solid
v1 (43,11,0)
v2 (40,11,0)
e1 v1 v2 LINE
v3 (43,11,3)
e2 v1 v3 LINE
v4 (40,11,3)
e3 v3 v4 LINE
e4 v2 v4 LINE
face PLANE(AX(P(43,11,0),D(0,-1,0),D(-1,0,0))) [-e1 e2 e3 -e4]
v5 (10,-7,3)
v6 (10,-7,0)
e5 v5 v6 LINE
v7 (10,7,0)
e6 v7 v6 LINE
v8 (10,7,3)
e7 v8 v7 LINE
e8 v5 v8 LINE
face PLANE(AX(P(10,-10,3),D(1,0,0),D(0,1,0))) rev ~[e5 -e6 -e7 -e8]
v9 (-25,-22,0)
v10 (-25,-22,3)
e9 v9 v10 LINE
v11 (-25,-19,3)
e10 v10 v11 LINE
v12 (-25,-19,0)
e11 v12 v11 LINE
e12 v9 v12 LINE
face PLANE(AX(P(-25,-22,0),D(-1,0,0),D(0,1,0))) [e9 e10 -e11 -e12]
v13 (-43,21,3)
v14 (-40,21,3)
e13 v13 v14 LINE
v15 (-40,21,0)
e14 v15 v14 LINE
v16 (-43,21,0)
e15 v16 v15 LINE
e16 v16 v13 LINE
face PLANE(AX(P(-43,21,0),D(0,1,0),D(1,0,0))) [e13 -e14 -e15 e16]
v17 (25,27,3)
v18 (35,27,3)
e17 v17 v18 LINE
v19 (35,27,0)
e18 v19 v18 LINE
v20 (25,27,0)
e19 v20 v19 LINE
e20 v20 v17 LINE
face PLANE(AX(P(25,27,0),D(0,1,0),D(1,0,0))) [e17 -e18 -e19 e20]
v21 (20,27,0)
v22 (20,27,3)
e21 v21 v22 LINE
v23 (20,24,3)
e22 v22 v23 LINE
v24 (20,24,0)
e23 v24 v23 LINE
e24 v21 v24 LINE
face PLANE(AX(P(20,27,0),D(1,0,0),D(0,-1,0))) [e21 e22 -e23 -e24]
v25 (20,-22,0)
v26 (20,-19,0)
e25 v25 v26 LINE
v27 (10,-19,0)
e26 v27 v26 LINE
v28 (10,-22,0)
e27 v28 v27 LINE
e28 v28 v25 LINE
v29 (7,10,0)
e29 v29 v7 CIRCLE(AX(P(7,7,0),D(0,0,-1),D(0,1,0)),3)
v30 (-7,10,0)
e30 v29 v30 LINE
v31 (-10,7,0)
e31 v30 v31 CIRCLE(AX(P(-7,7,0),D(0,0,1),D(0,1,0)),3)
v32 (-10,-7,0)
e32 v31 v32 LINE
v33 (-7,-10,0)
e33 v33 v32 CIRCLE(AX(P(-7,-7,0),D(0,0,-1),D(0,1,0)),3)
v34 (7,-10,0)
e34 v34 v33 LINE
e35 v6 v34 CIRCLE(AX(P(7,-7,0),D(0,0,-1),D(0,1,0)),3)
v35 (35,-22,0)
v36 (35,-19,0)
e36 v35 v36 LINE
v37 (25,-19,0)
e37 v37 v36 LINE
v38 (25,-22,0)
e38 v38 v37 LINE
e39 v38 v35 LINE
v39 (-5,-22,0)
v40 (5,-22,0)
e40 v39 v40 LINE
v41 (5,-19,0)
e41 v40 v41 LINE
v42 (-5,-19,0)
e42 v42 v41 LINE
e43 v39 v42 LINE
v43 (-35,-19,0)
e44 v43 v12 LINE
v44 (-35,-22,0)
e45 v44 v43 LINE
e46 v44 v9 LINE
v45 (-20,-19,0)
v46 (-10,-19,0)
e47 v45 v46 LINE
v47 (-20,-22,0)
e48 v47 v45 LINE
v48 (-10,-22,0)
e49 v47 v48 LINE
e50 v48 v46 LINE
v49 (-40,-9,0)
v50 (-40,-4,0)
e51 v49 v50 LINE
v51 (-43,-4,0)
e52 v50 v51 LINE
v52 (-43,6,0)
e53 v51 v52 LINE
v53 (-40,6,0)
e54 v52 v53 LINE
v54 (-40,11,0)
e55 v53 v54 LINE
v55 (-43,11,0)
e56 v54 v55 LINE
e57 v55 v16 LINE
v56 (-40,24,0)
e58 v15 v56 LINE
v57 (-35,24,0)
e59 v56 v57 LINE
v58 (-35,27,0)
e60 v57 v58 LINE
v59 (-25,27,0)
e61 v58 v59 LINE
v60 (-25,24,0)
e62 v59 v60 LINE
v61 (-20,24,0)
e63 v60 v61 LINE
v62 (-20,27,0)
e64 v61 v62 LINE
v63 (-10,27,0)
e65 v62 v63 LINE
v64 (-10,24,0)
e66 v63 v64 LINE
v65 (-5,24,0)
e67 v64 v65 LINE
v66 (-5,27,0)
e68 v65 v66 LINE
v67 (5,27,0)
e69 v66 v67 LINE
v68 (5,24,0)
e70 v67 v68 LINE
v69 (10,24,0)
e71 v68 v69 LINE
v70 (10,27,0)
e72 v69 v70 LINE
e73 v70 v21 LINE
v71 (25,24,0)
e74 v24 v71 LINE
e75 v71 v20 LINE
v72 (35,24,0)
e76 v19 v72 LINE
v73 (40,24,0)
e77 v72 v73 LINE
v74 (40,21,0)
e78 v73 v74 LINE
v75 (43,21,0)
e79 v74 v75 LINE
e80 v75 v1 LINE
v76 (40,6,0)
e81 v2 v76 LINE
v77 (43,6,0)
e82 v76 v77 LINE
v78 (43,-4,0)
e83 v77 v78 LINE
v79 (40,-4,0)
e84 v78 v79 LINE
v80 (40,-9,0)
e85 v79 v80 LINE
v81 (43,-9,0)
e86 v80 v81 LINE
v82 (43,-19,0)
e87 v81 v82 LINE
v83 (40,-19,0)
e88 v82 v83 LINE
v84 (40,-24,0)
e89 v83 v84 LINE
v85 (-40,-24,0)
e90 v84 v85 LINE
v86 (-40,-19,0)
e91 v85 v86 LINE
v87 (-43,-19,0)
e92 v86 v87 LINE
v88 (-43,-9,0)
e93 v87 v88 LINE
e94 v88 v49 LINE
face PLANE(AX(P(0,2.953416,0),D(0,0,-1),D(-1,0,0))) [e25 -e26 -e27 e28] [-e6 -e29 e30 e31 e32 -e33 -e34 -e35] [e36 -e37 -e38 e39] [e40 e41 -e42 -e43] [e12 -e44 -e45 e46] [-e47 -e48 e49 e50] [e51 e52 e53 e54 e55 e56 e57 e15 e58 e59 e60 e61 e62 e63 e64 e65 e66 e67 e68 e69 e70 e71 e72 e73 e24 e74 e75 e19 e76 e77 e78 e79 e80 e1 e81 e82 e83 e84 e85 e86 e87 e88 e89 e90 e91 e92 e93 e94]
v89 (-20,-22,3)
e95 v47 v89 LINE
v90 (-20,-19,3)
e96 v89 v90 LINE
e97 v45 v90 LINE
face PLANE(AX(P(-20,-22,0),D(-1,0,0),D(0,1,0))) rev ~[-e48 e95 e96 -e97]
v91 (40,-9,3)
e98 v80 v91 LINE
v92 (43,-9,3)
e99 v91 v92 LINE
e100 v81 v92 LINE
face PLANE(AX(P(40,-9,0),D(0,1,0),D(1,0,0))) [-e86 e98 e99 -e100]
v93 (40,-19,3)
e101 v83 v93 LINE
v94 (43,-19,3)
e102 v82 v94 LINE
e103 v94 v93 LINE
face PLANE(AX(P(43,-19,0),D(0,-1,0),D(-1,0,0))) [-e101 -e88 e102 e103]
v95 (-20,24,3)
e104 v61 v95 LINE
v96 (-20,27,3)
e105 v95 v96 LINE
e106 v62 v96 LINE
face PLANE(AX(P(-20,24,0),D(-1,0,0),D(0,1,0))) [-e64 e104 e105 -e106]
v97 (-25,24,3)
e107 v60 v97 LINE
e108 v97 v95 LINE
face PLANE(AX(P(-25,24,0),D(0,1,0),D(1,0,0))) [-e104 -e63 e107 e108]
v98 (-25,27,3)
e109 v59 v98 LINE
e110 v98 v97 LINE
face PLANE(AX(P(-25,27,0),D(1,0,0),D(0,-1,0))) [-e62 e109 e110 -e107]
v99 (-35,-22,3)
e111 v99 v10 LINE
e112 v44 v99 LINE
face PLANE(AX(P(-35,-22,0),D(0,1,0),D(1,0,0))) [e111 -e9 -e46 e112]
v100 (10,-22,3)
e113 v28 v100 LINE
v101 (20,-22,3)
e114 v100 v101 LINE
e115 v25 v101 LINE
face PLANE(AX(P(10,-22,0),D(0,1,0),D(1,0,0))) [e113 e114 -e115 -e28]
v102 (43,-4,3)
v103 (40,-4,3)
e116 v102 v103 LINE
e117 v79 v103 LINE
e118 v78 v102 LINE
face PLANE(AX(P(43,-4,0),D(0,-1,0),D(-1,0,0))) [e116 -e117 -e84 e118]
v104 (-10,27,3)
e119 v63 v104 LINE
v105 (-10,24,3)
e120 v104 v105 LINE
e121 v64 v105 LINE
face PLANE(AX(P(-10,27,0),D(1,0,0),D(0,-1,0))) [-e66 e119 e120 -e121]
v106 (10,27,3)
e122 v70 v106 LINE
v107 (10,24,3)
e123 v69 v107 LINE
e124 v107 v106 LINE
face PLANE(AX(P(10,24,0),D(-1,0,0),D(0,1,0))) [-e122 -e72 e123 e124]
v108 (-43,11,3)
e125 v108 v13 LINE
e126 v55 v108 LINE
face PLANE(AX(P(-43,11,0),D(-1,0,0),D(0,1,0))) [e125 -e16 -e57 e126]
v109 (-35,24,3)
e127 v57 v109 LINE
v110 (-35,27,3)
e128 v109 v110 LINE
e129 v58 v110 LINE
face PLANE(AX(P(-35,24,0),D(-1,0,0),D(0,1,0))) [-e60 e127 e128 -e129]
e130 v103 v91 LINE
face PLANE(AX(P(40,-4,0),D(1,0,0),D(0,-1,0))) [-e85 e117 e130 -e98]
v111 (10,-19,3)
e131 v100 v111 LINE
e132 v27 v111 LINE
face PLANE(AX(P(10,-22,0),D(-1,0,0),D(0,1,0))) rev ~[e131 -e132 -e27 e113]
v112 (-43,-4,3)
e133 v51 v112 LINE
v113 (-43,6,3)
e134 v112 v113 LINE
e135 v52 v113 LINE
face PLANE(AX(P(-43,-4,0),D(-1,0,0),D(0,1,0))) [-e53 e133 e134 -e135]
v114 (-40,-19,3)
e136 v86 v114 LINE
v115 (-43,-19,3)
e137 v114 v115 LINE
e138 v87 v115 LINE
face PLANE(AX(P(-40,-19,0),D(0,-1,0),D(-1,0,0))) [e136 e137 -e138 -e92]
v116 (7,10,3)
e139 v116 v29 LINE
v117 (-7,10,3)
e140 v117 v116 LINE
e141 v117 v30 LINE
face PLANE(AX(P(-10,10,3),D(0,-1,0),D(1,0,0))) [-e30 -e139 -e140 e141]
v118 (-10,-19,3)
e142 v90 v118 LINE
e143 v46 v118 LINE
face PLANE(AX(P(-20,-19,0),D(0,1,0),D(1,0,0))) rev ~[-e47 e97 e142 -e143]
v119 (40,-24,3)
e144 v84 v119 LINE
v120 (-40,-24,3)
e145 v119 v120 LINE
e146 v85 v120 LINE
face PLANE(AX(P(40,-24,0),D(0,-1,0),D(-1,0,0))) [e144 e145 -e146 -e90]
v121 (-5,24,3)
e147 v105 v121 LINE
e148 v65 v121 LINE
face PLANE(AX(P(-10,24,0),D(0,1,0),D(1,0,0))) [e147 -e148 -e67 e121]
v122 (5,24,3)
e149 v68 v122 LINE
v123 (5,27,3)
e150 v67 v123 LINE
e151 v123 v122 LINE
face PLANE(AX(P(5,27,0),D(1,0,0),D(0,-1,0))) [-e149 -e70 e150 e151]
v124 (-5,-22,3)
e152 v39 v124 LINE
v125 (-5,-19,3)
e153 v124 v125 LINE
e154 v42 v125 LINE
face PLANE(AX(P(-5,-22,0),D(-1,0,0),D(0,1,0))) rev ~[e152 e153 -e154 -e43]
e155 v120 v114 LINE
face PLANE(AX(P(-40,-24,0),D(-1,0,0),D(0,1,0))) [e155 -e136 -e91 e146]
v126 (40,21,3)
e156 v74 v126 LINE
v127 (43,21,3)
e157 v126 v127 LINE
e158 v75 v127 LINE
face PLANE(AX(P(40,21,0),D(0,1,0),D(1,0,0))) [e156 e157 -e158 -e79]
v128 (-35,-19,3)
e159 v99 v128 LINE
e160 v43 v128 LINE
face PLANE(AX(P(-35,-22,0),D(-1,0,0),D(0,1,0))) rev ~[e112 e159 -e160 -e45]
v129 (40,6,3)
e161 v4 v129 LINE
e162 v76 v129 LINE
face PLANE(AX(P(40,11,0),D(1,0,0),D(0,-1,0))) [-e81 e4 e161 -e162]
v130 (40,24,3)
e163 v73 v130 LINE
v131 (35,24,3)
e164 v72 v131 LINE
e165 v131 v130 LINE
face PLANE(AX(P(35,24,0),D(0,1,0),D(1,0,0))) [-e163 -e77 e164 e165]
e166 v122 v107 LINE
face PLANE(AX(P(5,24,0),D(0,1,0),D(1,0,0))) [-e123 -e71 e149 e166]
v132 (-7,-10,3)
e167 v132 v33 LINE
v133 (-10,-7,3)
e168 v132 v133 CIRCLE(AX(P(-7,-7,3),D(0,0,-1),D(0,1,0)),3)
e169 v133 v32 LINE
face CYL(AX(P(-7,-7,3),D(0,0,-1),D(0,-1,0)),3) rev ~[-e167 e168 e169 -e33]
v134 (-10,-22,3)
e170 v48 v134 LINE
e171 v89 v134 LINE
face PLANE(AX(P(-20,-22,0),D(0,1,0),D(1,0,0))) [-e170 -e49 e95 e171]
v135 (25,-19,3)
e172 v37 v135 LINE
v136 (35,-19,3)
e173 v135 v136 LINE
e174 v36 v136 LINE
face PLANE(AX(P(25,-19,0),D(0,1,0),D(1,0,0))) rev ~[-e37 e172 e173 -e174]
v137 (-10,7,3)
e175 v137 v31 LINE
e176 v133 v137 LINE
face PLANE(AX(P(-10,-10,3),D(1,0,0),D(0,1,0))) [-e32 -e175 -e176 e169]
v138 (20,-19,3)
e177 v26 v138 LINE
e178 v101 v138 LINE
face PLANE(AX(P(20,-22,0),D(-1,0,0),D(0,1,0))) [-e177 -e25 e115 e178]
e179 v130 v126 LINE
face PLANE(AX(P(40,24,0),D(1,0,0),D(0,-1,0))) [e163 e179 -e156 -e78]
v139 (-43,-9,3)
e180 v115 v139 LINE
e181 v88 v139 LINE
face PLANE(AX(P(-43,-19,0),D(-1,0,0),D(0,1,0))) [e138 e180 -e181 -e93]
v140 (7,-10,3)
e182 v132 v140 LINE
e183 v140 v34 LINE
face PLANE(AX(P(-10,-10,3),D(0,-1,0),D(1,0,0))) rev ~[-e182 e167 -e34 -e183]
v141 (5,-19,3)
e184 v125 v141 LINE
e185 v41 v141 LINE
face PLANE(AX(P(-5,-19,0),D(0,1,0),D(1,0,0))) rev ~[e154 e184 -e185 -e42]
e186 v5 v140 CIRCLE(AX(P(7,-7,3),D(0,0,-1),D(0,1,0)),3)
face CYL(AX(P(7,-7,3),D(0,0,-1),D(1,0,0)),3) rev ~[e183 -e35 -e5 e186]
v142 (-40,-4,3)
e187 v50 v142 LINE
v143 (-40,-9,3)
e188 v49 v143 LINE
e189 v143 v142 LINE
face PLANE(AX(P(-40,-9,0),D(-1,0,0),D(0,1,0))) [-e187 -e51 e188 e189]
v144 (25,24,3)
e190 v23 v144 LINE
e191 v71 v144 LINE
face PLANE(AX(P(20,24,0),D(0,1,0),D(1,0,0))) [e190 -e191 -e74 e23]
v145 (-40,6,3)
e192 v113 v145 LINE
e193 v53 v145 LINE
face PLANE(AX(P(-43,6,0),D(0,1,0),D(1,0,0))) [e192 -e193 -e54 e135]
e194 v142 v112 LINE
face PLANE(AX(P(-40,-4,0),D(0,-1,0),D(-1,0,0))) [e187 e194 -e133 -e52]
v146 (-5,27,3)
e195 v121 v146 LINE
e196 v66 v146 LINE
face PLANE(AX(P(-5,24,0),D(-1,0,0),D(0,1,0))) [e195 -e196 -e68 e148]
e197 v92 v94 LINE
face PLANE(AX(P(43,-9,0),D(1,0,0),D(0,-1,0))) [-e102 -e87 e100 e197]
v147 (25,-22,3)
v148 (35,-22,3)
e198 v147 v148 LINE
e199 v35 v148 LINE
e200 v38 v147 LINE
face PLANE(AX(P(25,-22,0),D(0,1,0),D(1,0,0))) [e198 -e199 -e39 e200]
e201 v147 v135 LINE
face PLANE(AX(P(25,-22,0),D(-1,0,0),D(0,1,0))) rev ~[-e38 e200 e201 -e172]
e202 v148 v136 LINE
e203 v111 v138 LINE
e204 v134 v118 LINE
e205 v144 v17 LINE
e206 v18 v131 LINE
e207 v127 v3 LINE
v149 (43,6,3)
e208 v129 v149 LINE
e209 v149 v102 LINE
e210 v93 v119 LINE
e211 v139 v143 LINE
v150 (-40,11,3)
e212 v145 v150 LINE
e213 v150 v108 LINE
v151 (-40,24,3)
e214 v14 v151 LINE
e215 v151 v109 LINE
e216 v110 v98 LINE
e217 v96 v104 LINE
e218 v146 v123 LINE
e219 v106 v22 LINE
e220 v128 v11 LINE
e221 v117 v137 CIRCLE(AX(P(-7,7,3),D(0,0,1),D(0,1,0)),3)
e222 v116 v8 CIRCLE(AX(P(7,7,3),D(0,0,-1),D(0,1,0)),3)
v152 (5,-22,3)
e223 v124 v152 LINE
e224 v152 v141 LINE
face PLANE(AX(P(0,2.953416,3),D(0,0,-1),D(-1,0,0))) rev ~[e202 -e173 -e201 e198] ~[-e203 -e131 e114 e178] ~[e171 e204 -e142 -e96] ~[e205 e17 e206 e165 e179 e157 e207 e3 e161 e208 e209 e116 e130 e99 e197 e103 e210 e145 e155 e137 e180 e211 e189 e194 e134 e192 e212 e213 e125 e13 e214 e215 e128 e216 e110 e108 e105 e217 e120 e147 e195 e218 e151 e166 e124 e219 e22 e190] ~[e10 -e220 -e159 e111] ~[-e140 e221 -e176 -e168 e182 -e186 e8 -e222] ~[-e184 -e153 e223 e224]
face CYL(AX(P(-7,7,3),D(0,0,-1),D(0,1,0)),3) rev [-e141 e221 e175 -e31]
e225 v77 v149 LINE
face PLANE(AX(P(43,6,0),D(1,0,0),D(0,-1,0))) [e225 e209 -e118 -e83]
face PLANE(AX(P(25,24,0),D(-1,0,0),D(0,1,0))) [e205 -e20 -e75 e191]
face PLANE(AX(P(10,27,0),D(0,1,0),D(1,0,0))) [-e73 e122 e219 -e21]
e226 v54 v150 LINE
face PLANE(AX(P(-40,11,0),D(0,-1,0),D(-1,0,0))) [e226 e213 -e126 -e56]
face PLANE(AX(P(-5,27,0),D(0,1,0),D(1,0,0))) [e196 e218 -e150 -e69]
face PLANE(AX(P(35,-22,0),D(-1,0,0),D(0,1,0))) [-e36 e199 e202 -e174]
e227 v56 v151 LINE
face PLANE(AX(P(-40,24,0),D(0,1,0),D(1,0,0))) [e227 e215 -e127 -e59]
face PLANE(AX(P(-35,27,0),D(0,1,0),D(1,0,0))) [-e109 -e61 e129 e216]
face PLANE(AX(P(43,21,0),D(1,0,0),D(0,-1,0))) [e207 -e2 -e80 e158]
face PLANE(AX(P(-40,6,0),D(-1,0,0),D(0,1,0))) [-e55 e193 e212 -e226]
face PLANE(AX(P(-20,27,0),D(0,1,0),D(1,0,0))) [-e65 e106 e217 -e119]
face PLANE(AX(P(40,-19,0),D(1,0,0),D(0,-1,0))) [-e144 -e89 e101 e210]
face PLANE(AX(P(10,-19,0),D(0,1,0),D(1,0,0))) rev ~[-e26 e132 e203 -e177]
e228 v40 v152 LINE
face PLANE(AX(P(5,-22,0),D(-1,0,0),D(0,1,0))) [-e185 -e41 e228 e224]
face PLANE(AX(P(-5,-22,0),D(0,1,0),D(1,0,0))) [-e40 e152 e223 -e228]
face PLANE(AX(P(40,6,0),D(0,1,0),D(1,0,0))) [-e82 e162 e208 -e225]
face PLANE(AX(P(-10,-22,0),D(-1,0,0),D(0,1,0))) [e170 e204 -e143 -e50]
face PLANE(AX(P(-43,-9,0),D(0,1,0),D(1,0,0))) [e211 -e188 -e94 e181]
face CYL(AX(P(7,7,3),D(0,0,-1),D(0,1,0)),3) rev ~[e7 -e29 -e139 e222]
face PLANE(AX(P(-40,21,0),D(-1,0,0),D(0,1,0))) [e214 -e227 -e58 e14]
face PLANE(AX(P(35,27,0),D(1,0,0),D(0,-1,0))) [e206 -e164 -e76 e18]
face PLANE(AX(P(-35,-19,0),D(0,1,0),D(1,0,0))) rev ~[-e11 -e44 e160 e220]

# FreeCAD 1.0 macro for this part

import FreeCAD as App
import Part
import Sketcher
Q = App.Units.Quantity


def edges_at(feature, points):
    """Names of the edges that pass closest to the given points."""
    edges = feature.Shape.Edges
    near = lambda p: min(range(len(edges)), key=lambda i: edges[i].distToShape(Part.Vertex(*p))[0])
    return sorted({f"Edge{near(p) + 1}" for p in points})


def add_polygon(sketch, points):
    """Adds a closed chain of lines whose ends are joined by coincident constraints."""
    first, n = sketch.GeometryCount, len(points)
    for a, b in zip(points, points[1:] + points[:1]):
        sketch.addGeometry(Part.LineSegment(App.Vector(*a, 0), App.Vector(*b, 0)), False)
    for i in range(n):
        sketch.addConstraint(Sketcher.Constraint("Coincident", first + i, 2, first + (i + 1) % n, 1))

doc = App.newDocument("Part")
body = doc.addObject("PartDesign::Body", "Body")

# Sketch on XY plane
sketch1 = body.newObject("Sketcher::SketchObject", "Sketch")
sketch1.AttachmentSupport = (doc.getObject("XY_Plane"), [""])
sketch1.MapMode = "FlatFace"
add_polygon(sketch1, [(-35, 24), (-40, 24), (-40, 21), (-43, 21), (-43, 11), (-40, 11), (-40, 6), (-43, 6), (-43, -4), (-40, -4), (-40, -9), (-43, -9), (-43, -19), (-40, -19), (-40, -24), (40, -24), (40, -19), (43, -19), (43, -9), (40, -9), (40, -4), (43, -4), (43, 6), (40, 6), (40, 11), (43, 11), (43, 21), (40, 21), (40, 24), (35, 24), (35, 27), (25, 27), (25, 24), (20, 24), (20, 27), (10, 27), (10, 24), (5, 24), (5, 27), (-5, 27), (-5, 24), (-10, 24), (-10, 27), (-20, 27), (-20, 24), (-25, 24), (-25, 27), (-35, 27)])  # lines 0-47
add_polygon(sketch1, [(25, -22), (25, -19), (35, -19), (35, -22)])  # lines 48-51
add_polygon(sketch1, [(10, -22), (10, -19), (20, -19), (20, -22)])  # lines 52-55
add_polygon(sketch1, [(-5, -22), (-5, -19), (5, -19), (5, -22)])  # lines 56-59
add_polygon(sketch1, [(-20, -22), (-20, -19), (-10, -19), (-10, -22)])  # lines 60-63
add_polygon(sketch1, [(-35, -22), (-35, -19), (-25, -19), (-25, -22)])  # lines 64-67
sketch1.addConstraint([
    Sketcher.Constraint("Horizontal", 0),
    Sketcher.Constraint("Vertical", 1),
    Sketcher.Constraint("Horizontal", 2),
    Sketcher.Constraint("Vertical", 3),
    Sketcher.Constraint("Horizontal", 4),
    Sketcher.Constraint("Vertical", 5),
    Sketcher.Constraint("Horizontal", 6),
    Sketcher.Constraint("Vertical", 7),
    Sketcher.Constraint("Horizontal", 8),
    Sketcher.Constraint("Vertical", 9),
    Sketcher.Constraint("Horizontal", 10),
    Sketcher.Constraint("Vertical", 11),
    Sketcher.Constraint("Horizontal", 12),
    Sketcher.Constraint("Vertical", 13),
    Sketcher.Constraint("Horizontal", 14),
    Sketcher.Constraint("Vertical", 15),
    Sketcher.Constraint("Horizontal", 16),
    Sketcher.Constraint("Vertical", 17),
    Sketcher.Constraint("Horizontal", 18),
    Sketcher.Constraint("Vertical", 19),
    Sketcher.Constraint("Horizontal", 20),
    Sketcher.Constraint("Vertical", 21),
    Sketcher.Constraint("Horizontal", 22),
    Sketcher.Constraint("Vertical", 23),
    Sketcher.Constraint("Horizontal", 24),
    Sketcher.Constraint("Vertical", 25),
    Sketcher.Constraint("Horizontal", 26),
    Sketcher.Constraint("Vertical", 27),
    Sketcher.Constraint("Horizontal", 28),
    Sketcher.Constraint("Vertical", 29),
    Sketcher.Constraint("Horizontal", 30),
    Sketcher.Constraint("Vertical", 31),
    Sketcher.Constraint("Horizontal", 32),
    Sketcher.Constraint("Vertical", 33),
    Sketcher.Constraint("Horizontal", 34),
    Sketcher.Constraint("Vertical", 35),
    Sketcher.Constraint("Horizontal", 36),
    Sketcher.Constraint("Vertical", 37),
    Sketcher.Constraint("Horizontal", 38),
    Sketcher.Constraint("Vertical", 39),
    Sketcher.Constraint("Horizontal", 40),
    Sketcher.Constraint("Vertical", 41),
    Sketcher.Constraint("Horizontal", 42),
    Sketcher.Constraint("Vertical", 43),
    Sketcher.Constraint("Horizontal", 44),
    Sketcher.Constraint("Vertical", 45),
    Sketcher.Constraint("Horizontal", 46),
    Sketcher.Constraint("Vertical", 47),
    Sketcher.Constraint("Vertical", 48),
    Sketcher.Constraint("Horizontal", 49),
    Sketcher.Constraint("Vertical", 50),
    Sketcher.Constraint("Horizontal", 51),
    Sketcher.Constraint("Vertical", 52),
    Sketcher.Constraint("Horizontal", 53),
    Sketcher.Constraint("Vertical", 54),
    Sketcher.Constraint("Horizontal", 55),
    Sketcher.Constraint("Vertical", 56),
    Sketcher.Constraint("Horizontal", 57),
    Sketcher.Constraint("Vertical", 58),
    Sketcher.Constraint("Horizontal", 59),
    Sketcher.Constraint("Vertical", 60),
    Sketcher.Constraint("Horizontal", 61),
    Sketcher.Constraint("Vertical", 62),
    Sketcher.Constraint("Horizontal", 63),
    Sketcher.Constraint("Vertical", 64),
    Sketcher.Constraint("Horizontal", 65),
    Sketcher.Constraint("Vertical", 66),
    Sketcher.Constraint("Horizontal", 67),
    Sketcher.Constraint("Symmetric", 0, 2, 14, 2, -1, 1),
    Sketcher.Constraint("Symmetric", 13, 2, 27, 2, -1, 1),
    Sketcher.Constraint("Symmetric", 12, 2, 15, 2, -2),
    Sketcher.Constraint("Symmetric", 10, 2, 17, 2, -2),
    Sketcher.Constraint("Symmetric", 8, 2, 19, 2, -2),
    Sketcher.Constraint("Symmetric", 6, 2, 21, 2, -2),
    Sketcher.Constraint("Symmetric", 4, 2, 23, 2, -2),
    Sketcher.Constraint("Symmetric", 2, 2, 25, 2, -2),
    Sketcher.Constraint("Symmetric", 36, 2, 39, 2, -2),
    Sketcher.Constraint("Symmetric", 34, 2, 41, 2, -2),
    Sketcher.Constraint("Symmetric", 32, 2, 43, 2, -2),
    Sketcher.Constraint("Symmetric", 30, 2, 45, 2, -2),
    Sketcher.Constraint("Symmetric", 53, 2, 60, 2, -2),
    Sketcher.Constraint("Symmetric", 55, 2, 62, 2, -2),
    Sketcher.Constraint("Symmetric", 49, 2, 64, 2, -2),
    Sketcher.Constraint("Symmetric", 51, 2, 66, 2, -2),
    Sketcher.Constraint("Horizontal", 28, 2, 31, 2),
    Sketcher.Constraint("Horizontal", 30, 2, 33, 2),
    Sketcher.Constraint("Horizontal", 32, 2, 35, 2),
    Sketcher.Constraint("Horizontal", 34, 2, 37, 2),
    Sketcher.Constraint("Horizontal", 16, 2, 48, 2),
    Sketcher.Constraint("Horizontal", 49, 2, 52, 2),
    Sketcher.Constraint("Horizontal", 51, 2, 54, 2),
    Sketcher.Constraint("Horizontal", 53, 2, 56, 2),
    Sketcher.Constraint("Horizontal", 55, 2, 58, 2),
    Sketcher.Constraint("Vertical", 1, 2, 4, 2),
    Sketcher.Constraint("Vertical", 3, 2, 6, 2),
    Sketcher.Constraint("Vertical", 5, 2, 8, 2),
    Sketcher.Constraint("Vertical", 7, 2, 10, 2),
    Sketcher.Constraint("Vertical", 31, 2, 48, 2),
    Sketcher.Constraint("Vertical", 29, 2, 49, 2),
    Sketcher.Constraint("Vertical", 35, 2, 52, 2),
    Sketcher.Constraint("Vertical", 33, 2, 53, 2),
    Sketcher.Constraint("Vertical", 39, 2, 56, 2),
    Sketcher.Constraint("Vertical", 37, 2, 57, 2),
    Sketcher.Constraint("Vertical", 47, 2, 64, 2),
    Sketcher.Constraint("Equal", 28, 32),
    Sketcher.Constraint("Equal", 30, 34),
    Sketcher.Constraint("Equal", 32, 36),
    Sketcher.Constraint("Equal", 34, 38),
    Sketcher.Constraint("Equal", 26, 1),
    Sketcher.Constraint("Equal", 67, 3),
    Sketcher.Constraint("Equal", 44, 5),
    Sketcher.Constraint("Equal", 3, 7),
    Sketcher.Constraint("Equal", 5, 9),
    Sketcher.Constraint("Equal", 7, 11),
    Sketcher.Constraint("Equal", 9, 13),
    Sketcher.Constraint("Equal", 27, 29),
    Sketcher.Constraint("Equal", 47, 48),
    Sketcher.Constraint("DistanceX", 0, 2, 0, 1, Q("5 mm")),
    Sketcher.Constraint("DistanceX", 2, 2, 2, 1, Q("3 mm")),
    Sketcher.Constraint("DistanceX", 14, 1, 14, 2, Q("80 mm")),
])
pad1 = body.newObject("PartDesign::Pad", "Pad")
pad1.Profile = sketch1
pad1.Length = 3

# Sketch on XY plane
sketch2 = body.newObject("Sketcher::SketchObject", "Sketch001")
sketch2.AttachmentSupport = (doc.getObject("XY_Plane"), [""])
sketch2.MapMode = "FlatFace"
sketch2.AttachmentOffset = App.Placement(App.Vector(0, 0, 3), App.Rotation())
add_polygon(sketch2, [(-10, 10), (-10, -10), (10, -10), (10, 10)])  # lines 0-3
sketch2.addConstraint([
    Sketcher.Constraint("Vertical", 0),
    Sketcher.Constraint("Horizontal", 1),
    Sketcher.Constraint("Vertical", 2),
    Sketcher.Constraint("Horizontal", 3),
    Sketcher.Constraint("Symmetric", 0, 2, 2, 2, -1, 1),
    Sketcher.Constraint("Equal", 3, 0),
    Sketcher.Constraint("DistanceX", 1, 1, 1, 2, Q("20 mm")),
])
pocket1 = body.newObject("PartDesign::Pocket", "Pocket")
pocket1.Profile = sketch2
pocket1.Length = 10
doc.recompute()

fillet = body.newObject("PartDesign::Fillet", "Fillet")
fillet.Base = (pocket1, edges_at(pocket1, [
    (10, 10, 1.5),
    (10, -10, 1.5),
    (-10, -10, 1.5),
    (-10, 10, 1.5),
]))
fillet.Radius = 3

doc.recompute()
